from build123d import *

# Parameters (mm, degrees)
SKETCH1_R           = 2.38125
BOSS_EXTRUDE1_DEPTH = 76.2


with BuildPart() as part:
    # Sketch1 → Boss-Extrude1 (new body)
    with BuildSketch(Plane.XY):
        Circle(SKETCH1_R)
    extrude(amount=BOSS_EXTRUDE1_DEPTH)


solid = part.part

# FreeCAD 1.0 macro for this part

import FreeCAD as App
import Part
import Sketcher
from FreeCAD import Vector
Q = App.Units.Quantity

doc = App.newDocument("Part")
params = doc.addObject("Spreadsheet::Sheet", "Params")
for row, (alias, value) in enumerate([
    ("sketch1_diameter", "0.1875 in"),
    ("pad1_length", "3 in"),
], start=1):
    params.set(f"A{row}", alias)
    params.set(f"B{row}", "=" + value)
    params.setAlias(f"B{row}", alias)

body = doc.addObject("PartDesign::Body", "Body")

# Sketch on XY plane
sketch1 = doc.addObject("Sketcher::SketchObject", "Sketch")
body.addObject(sketch1)
sketch1.AttachmentSupport = (doc.XY_Plane, [""])
sketch1.MapMode = "FlatFace"
sketch1.addGeometry(Part.Circle(Vector(0, 0, 0), Vector(0, 0, 1), 2.4), False)
sketch1.addConstraint([
    Sketcher.Constraint("Coincident", 0, 3, -1, 1),
    Sketcher.Constraint("Diameter", 0, Q("0.1875 in")),
])
sketch1.setExpression("Constraints[1]", "Params.sketch1_diameter")
pad1 = doc.addObject("PartDesign::Pad", "Pad")
body.addObject(pad1)
pad1.Profile = sketch1
pad1.setExpression("Length", "Params.pad1_length")

doc.recompute()
